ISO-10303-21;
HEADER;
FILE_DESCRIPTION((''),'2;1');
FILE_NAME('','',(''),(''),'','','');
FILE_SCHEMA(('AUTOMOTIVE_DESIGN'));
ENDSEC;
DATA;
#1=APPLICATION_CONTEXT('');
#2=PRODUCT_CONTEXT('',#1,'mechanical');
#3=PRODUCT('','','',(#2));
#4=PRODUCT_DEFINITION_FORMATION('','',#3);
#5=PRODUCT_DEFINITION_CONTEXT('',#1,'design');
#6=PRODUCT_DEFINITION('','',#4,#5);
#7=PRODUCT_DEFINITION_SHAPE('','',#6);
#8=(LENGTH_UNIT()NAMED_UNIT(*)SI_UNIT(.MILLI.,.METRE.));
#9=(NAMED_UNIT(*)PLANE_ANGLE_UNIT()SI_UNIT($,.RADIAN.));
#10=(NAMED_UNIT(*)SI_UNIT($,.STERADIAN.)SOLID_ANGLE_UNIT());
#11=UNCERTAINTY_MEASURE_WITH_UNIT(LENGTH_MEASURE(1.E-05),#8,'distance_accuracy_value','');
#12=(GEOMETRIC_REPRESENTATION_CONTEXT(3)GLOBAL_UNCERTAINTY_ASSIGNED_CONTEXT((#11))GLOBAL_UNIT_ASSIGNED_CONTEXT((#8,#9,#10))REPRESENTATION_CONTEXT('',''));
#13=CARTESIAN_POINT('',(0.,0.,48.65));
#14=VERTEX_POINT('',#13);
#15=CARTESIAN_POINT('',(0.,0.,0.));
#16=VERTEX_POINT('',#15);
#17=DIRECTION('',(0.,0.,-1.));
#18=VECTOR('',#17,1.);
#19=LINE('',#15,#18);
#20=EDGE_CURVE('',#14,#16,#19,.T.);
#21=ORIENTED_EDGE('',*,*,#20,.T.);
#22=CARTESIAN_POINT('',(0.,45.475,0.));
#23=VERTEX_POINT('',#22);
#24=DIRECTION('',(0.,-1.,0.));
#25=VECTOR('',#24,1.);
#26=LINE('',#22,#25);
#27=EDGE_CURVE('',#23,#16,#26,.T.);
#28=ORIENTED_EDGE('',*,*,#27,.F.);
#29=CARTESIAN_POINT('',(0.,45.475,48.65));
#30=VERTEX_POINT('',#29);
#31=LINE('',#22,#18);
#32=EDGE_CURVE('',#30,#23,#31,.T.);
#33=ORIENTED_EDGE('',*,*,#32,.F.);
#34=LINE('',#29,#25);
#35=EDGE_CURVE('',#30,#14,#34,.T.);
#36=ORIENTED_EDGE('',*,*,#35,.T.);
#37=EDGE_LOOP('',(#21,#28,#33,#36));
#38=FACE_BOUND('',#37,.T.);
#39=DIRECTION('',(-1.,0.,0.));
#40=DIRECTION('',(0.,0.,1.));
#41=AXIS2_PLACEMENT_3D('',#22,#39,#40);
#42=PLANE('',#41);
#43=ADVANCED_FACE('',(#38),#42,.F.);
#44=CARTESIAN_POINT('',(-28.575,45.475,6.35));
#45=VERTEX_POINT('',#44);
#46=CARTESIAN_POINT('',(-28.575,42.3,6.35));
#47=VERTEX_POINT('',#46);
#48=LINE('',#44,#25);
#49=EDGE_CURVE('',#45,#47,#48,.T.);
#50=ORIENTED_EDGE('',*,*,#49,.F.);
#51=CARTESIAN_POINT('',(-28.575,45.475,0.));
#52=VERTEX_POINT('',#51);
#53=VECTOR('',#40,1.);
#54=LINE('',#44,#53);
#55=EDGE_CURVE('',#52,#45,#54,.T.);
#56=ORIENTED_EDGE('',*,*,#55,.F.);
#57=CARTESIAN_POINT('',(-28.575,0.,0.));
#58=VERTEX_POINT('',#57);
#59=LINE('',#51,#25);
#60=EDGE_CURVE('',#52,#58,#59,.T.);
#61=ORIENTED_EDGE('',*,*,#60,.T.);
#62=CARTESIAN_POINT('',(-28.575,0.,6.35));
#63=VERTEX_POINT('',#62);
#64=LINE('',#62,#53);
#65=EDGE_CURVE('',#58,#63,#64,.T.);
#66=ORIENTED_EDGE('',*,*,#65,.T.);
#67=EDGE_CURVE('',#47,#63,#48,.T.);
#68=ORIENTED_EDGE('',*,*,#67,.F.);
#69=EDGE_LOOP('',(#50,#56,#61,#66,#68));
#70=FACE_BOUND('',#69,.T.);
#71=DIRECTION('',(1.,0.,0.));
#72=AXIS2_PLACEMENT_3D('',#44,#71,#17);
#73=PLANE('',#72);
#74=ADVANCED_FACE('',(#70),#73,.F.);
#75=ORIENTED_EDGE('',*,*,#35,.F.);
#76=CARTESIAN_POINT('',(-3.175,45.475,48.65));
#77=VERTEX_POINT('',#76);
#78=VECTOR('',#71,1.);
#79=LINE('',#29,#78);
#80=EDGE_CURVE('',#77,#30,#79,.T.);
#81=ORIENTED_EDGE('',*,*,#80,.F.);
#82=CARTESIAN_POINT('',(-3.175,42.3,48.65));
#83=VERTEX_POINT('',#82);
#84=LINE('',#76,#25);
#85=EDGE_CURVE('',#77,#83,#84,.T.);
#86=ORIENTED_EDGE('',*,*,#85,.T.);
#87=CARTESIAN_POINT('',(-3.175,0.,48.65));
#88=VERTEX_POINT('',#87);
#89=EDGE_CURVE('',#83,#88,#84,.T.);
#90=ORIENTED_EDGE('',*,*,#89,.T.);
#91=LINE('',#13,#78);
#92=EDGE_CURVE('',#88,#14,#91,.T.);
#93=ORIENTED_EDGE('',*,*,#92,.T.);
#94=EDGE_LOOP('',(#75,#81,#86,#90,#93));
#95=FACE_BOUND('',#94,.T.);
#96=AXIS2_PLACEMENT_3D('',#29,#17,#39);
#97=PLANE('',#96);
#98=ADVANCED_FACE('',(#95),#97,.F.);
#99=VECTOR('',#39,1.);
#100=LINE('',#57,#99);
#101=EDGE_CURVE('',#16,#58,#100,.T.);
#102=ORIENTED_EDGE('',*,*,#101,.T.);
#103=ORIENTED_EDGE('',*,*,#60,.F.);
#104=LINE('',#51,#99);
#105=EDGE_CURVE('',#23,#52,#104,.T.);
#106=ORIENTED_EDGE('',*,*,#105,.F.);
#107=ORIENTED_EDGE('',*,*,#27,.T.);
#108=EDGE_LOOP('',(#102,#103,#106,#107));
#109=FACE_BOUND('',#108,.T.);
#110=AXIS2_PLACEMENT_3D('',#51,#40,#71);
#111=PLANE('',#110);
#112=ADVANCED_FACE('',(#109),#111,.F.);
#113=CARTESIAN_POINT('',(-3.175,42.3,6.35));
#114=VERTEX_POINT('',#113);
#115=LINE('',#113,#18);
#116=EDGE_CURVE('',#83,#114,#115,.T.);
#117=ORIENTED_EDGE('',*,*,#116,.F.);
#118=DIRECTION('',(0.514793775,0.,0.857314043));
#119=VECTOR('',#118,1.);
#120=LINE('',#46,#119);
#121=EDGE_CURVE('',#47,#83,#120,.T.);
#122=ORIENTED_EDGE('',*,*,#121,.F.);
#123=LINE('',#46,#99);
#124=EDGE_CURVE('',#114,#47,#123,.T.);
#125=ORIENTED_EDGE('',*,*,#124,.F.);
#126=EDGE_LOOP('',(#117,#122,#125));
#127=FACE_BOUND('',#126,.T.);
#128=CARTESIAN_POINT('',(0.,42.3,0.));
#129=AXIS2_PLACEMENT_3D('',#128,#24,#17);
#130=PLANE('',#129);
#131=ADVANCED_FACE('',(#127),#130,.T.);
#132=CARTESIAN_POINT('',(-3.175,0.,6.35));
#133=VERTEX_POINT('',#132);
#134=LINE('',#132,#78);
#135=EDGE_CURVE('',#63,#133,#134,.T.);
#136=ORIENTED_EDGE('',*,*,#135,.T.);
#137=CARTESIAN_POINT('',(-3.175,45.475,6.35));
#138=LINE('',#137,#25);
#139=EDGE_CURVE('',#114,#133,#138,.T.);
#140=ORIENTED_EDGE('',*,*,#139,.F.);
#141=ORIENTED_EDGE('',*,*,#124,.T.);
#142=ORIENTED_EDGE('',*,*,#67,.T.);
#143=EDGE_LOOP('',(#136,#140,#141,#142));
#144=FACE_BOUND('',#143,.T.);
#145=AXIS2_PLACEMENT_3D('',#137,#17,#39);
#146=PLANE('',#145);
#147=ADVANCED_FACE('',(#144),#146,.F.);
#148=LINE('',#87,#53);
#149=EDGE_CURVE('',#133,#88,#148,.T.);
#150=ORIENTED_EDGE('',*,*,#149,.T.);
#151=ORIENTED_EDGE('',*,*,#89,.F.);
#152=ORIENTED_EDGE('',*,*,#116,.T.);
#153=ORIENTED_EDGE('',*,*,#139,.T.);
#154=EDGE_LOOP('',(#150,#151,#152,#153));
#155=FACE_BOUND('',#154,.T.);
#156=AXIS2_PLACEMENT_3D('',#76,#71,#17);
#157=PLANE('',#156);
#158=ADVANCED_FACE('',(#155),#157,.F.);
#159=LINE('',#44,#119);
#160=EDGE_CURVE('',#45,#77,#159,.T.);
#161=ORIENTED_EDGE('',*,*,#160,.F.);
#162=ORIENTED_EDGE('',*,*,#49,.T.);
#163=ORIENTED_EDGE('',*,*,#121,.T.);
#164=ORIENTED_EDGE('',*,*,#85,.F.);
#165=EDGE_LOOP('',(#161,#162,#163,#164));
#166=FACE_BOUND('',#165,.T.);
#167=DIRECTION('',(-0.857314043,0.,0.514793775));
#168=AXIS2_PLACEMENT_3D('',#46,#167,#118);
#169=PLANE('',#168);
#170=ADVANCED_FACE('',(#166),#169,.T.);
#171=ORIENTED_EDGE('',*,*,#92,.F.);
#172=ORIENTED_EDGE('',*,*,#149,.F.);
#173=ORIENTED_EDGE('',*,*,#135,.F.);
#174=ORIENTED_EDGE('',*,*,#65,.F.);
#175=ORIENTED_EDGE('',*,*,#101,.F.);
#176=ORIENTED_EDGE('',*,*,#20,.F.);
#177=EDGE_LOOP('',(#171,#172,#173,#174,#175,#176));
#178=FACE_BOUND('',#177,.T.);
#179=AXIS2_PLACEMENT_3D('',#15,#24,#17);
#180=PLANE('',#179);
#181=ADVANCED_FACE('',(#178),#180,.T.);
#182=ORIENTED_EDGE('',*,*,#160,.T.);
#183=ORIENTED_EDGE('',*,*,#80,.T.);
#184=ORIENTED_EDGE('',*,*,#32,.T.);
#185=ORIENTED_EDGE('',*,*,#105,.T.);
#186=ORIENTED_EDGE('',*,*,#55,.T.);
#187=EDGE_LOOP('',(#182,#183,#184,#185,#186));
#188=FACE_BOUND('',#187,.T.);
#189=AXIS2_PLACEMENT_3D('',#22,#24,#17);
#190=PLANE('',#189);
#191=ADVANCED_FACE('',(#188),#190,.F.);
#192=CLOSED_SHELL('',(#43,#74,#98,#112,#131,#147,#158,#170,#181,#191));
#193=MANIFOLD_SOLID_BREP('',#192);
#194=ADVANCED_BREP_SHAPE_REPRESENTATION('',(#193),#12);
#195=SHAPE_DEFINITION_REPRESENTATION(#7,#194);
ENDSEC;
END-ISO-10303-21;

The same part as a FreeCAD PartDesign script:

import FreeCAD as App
import Part
import Sketcher

V = App.Vector
Q = App.Units.Quantity

doc = App.newDocument("Part")
body = doc.addObject("PartDesign::Body", "Body")

sketch1 = body.newObject("Sketcher::SketchObject", "Sketch")
sketch1.AttachmentSupport = (doc.getObject("XZ_Plane"), [""])
sketch1.MapMode = "FlatFace"
sketch1.addGeometry([
    Part.LineSegment(V(0, 48.6, 0), V(0, 0, 0)),
    Part.LineSegment(V(0, 0, 0), V(-28.6, 0, 0)),
    Part.LineSegment(V(-28.6, 0, 0), V(-28.6, 6.3, 0)),
    Part.LineSegment(V(-28.6, 6.3, 0), V(-3.2, 6.3, 0)),
    Part.LineSegment(V(-3.2, 6.3, 0), V(-3.2, 48.6, 0)),
    Part.LineSegment(V(-3.2, 48.6, 0), V(0, 48.6, 0)),
], False)
sketch1.addConstraint([
    Sketcher.Constraint("Coincident", 0, 2, 1, 1),
    Sketcher.Constraint("Coincident", 1, 2, 2, 1),
    Sketcher.Constraint("Coincident", 2, 2, 3, 1),
    Sketcher.Constraint("Coincident", 3, 2, 4, 1),
    Sketcher.Constraint("Coincident", 4, 2, 5, 1),
    Sketcher.Constraint("Coincident", 5, 2, 0, 1),
    Sketcher.Constraint("Vertical", 0),
    Sketcher.Constraint("Horizontal", 1),
    Sketcher.Constraint("Vertical", 2),
    Sketcher.Constraint("Horizontal", 3),
    Sketcher.Constraint("Vertical", 4),
    Sketcher.Constraint("Horizontal", 5),
    Sketcher.Constraint("Coincident", 0, 2, -1, 1),
    Sketcher.Constraint("DistanceX", 3, 1, 3, 2, Q("1 in")),
    Sketcher.Constraint("DistanceY", 2, 1, 2, 2, Q("0.25 in")),
    Sketcher.Constraint("DistanceX", 1, 2, 1, 1, Q("1.125 in")),
    Sketcher.Constraint("DistanceY", 0, 2, 0, 1, Q("48.65 mm")),
])
pad1 = body.newObject("PartDesign::Pad", "Pad")
pad1.Profile = sketch1
pad1.Length = 45.475
pad1.Reversed = True

sketch2 = body.newObject("Sketcher::SketchObject", "Sketch001")
sketch2.AttachmentSupport = (doc.getObject("XZ_Plane"), [""])
sketch2.MapMode = "FlatFace"
sketch2.AttachmentOffset = App.Placement(V(0, 0, -45.475), App.Rotation())
sketch2.addGeometry([
    Part.LineSegment(V(-29, 6, 0), V(-3, 49, 0)),
    Part.LineSegment(V(-3, 49, 0), V(-3, 6, 0)),
    Part.LineSegment(V(-3, 6, 0), V(-29, 6, 0)),
], False)
sketch2.addConstraint([
    Sketcher.Constraint("Coincident", 0, 2, 1, 1),
    Sketcher.Constraint("Coincident", 1, 2, 2, 1),
    Sketcher.Constraint("Coincident", 2, 2, 0, 1),
    Sketcher.Constraint("Vertical", 1),
    Sketcher.Constraint("Horizontal", 2),
    Sketcher.Constraint("DistanceX", 2, 2, 2, 1, Q("1 in")),
    Sketcher.Constraint("DistanceY", -1, 1, 1, 2, Q("0.25 in")),
    Sketcher.Constraint("DistanceX", 0, 2, -1, 1, Q("0.125 in")),
    Sketcher.Constraint("DistanceY", 1, 2, 1, 1, Q("42.3 mm")),
])
pad2 = body.newObject("PartDesign::Pad", "Pad001")
pad2.Profile = sketch2
pad2.Length = Q("0.125 in")

doc.recompute()
